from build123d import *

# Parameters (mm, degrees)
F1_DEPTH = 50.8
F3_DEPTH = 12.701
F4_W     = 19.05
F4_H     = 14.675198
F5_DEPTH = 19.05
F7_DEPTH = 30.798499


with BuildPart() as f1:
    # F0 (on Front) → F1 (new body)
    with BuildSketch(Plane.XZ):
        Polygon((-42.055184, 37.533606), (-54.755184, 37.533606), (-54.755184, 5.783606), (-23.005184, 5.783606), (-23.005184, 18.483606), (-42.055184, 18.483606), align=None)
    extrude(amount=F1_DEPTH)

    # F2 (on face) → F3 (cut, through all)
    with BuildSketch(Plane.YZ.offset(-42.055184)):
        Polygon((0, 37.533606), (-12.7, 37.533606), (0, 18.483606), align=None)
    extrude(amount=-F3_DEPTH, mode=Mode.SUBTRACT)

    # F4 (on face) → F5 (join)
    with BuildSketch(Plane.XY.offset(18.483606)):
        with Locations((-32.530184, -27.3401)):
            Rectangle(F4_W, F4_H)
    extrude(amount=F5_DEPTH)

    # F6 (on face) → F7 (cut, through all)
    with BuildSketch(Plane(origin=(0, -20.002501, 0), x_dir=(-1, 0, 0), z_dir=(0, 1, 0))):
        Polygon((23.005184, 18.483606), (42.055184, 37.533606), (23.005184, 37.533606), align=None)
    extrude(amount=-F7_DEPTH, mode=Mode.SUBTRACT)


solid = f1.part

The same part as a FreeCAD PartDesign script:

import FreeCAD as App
import Part
import Sketcher
from FreeCAD import Vector
Q = App.Units.Quantity


def add_polygon(sketch, points):
    """Adds a closed chain of lines whose ends are joined by coincident constraints."""
    first, n = sketch.GeometryCount, len(points)
    for a, b in zip(points, points[1:] + points[:1]):
        sketch.addGeometry(Part.LineSegment(App.Vector(*a, 0), App.Vector(*b, 0)), False)
    for i in range(n):
        sketch.addConstraint(Sketcher.Constraint("Coincident", first + i, 2, first + (i + 1) % n, 1))

doc = App.newDocument("Part")
body = doc.addObject("PartDesign::Body", "Body")

# Sketch on XZ plane
sketch1 = body.newObject("Sketcher::SketchObject", "Sketch")
sketch1.AttachmentSupport = (doc.getObject("XZ_Plane"), [""])
sketch1.MapMode = "FlatFace"
add_polygon(sketch1, [(-42, 38), (-55, 38), (-55, 6), (-23, 6), (-23, 18), (-42, 18)])  # lines 0-5
sketch1.addConstraint([
    Sketcher.Constraint("Horizontal", 0),
    Sketcher.Constraint("Vertical", 1),
    Sketcher.Constraint("Horizontal", 2),
    Sketcher.Constraint("Vertical", 3),
    Sketcher.Constraint("Horizontal", 4),
    Sketcher.Constraint("Vertical", 5),
    Sketcher.Constraint("Equal", 2, 1),
    Sketcher.Constraint("Equal", 0, 3),
    Sketcher.Constraint("DistanceX", 0, 2, 0, 1, Q("0.5 in")),
    Sketcher.Constraint("DistanceX", 2, 1, 2, 2, Q("1.25 in")),
    Sketcher.Constraint("DistanceX", 0, 2, -1, 1, Q("54.755184 mm")),
    Sketcher.Constraint("DistanceY", -1, 1, 0, 2, Q("37.533606 mm")),
])
pad1 = body.newObject("PartDesign::Pad", "Pad")
pad1.Profile = sketch1
pad1.Length = Q("2 in")

# Sketch on YZ plane
sketch2 = body.newObject("Sketcher::SketchObject", "Sketch001")
sketch2.AttachmentSupport = (doc.getObject("YZ_Plane"), [""])
sketch2.MapMode = "FlatFace"
sketch2.AttachmentOffset = App.Placement(Vector(0, 0, -42.055184), App.Rotation())
add_polygon(sketch2, [(0, 38), (-13, 38), (0, 18)])  # lines 0-2
sketch2.addConstraint([
    Sketcher.Constraint("Horizontal", 0),
    Sketcher.Constraint("Vertical", 2),
    Sketcher.Constraint("PointOnObject", 1, 2, -2),
    Sketcher.Constraint("DistanceX", 0, 2, 0, 1, Q("0.5 in")),
    Sketcher.Constraint("DistanceY", 2, 1, 2, 2, Q("0.75 in")),
    Sketcher.Constraint("DistanceY", -1, 1, 0, 2, Q("37.533606 mm")),
])
pocket1 = body.newObject("PartDesign::Pocket", "Pocket")
pocket1.Profile = sketch2
pocket1.Type = "ThroughAll"

# Sketch on XY plane
sketch3 = body.newObject("Sketcher::SketchObject", "Sketch002")
sketch3.AttachmentSupport = (doc.getObject("XY_Plane"), [""])
sketch3.MapMode = "FlatFace"
sketch3.AttachmentOffset = App.Placement(Vector(0, 0, 18.483606), App.Rotation())
add_polygon(sketch3, [(-42, -20), (-42, -35), (-23, -35), (-23, -20)])  # lines 0-3
sketch3.addConstraint([
    Sketcher.Constraint("Vertical", 0),
    Sketcher.Constraint("Horizontal", 1),
    Sketcher.Constraint("Vertical", 2),
    Sketcher.Constraint("Horizontal", 3),
    Sketcher.Constraint("DistanceX", 1, 1, 1, 2, Q("0.75 in")),
    Sketcher.Constraint("DistanceY", 2, 2, -1, 1, Q("0.7875 in")),
    Sketcher.Constraint("DistanceY", 0, 2, -1, 1, Q("34.677699 mm")),
    Sketcher.Constraint("DistanceX", 0, 2, -1, 1, Q("42.055184 mm")),
])
pad2 = body.newObject("PartDesign::Pad", "Pad001")
pad2.Profile = sketch3
pad2.Length = Q("0.75 in")

# Sketch on XZ plane
sketch4 = body.newObject("Sketcher::SketchObject", "Sketch003")
sketch4.AttachmentSupport = (doc.getObject("XZ_Plane"), [""])
sketch4.MapMode = "FlatFace"
sketch4.AttachmentOffset = App.Placement(Vector(0, 0, 0.7875 * 25.4), App.Rotation())
add_polygon(sketch4, [(-23, 18), (-42, 38), (-23, 38)])  # lines 0-2
sketch4.addConstraint([
    Sketcher.Constraint("Horizontal", 1),
    Sketcher.Constraint("Vertical", 2),
    Sketcher.Constraint("Equal", 1, 2),
    Sketcher.Constraint("DistanceX", 1, 1, 1, 2, Q("0.75 in")),
    Sketcher.Constraint("DistanceX", 0, 2, -1, 1, Q("42.055184 mm")),
    Sketcher.Constraint("DistanceY", -1, 1, 0, 2, Q("37.533606 mm")),
])
pocket2 = body.newObject("PartDesign::Pocket", "Pocket001")
pocket2.Profile = sketch4
pocket2.Type = "ThroughAll"
pocket2.Reversed = True

doc.recompute()
